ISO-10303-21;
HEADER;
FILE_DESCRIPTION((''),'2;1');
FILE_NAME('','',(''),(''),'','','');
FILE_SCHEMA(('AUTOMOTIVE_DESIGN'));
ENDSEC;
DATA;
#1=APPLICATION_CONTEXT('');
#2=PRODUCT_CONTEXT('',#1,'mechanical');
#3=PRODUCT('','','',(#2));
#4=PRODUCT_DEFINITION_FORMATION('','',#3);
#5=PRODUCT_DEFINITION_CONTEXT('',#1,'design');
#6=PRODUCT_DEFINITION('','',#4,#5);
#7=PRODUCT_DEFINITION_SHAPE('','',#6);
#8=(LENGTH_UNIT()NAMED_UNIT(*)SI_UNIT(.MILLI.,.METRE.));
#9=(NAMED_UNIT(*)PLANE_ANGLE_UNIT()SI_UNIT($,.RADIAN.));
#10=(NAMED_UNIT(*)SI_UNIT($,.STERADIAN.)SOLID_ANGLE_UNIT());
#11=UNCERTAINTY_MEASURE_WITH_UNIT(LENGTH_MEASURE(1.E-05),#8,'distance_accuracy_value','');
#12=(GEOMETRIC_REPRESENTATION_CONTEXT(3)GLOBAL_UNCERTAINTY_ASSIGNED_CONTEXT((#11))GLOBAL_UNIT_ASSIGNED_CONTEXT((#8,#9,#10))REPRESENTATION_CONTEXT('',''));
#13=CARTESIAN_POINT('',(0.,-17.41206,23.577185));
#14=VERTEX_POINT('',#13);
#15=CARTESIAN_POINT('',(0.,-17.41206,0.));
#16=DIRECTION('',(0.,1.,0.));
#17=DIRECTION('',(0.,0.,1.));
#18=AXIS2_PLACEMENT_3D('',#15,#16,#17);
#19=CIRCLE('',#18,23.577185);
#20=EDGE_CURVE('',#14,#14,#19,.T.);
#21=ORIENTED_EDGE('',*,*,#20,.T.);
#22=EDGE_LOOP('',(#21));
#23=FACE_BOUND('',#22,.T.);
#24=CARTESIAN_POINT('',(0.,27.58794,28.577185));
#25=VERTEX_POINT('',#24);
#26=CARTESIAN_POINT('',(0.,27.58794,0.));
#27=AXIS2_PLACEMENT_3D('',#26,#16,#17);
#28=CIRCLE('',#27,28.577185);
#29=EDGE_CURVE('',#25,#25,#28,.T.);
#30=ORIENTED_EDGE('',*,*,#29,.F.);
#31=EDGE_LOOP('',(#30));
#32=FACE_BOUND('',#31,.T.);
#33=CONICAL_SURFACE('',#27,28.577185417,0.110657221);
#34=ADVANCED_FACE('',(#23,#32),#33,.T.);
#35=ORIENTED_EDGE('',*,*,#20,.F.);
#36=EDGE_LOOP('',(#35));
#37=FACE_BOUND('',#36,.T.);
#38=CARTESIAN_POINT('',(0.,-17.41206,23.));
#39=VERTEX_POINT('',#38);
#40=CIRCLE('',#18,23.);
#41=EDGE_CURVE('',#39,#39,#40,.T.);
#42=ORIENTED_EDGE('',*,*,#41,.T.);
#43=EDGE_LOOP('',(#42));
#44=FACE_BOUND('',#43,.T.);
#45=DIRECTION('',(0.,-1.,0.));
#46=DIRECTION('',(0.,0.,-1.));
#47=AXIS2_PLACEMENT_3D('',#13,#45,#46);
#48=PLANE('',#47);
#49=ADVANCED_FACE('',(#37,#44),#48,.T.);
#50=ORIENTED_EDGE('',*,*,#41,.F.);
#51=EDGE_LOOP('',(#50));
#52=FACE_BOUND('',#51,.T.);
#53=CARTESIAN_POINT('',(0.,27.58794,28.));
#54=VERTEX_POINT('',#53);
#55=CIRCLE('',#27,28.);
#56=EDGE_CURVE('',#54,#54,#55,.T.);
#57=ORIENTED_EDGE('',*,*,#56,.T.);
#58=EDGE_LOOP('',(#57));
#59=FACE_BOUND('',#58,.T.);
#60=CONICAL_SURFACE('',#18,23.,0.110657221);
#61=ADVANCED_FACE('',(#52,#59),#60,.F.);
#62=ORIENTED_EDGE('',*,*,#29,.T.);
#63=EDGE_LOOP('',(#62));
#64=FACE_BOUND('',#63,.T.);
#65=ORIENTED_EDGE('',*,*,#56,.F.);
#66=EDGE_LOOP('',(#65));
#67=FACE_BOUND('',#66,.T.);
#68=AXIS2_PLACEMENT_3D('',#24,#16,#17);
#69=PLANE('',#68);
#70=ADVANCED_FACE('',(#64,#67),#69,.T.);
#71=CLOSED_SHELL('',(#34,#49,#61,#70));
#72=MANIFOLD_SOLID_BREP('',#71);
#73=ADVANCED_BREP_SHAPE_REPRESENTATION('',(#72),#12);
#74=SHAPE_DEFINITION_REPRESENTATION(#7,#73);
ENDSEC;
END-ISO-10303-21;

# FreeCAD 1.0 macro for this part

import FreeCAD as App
import Part
import Sketcher

doc = App.newDocument("Part")
body = doc.addObject("PartDesign::Body", "Body")

# Sketch on YZ plane
sketch1 = body.newObject("Sketcher::SketchObject", "Sketch")
sketch1.AttachmentSupport = (doc.getObject("YZ_Plane"), [""])
sketch1.MapMode = "FlatFace"
sketch1.addGeometry(Part.LineSegment(App.Vector(-17.41206, 23.577185, 0), App.Vector(-17.41206, 23, 0)), False)
sketch1.addGeometry(Part.LineSegment(App.Vector(-17.41206, 23, 0), App.Vector(27.58794, 28, 0)), False)
sketch1.addGeometry(Part.LineSegment(App.Vector(27.58794, 28, 0), App.Vector(27.58794, 28.577185, 0)), False)
sketch1.addGeometry(Part.LineSegment(App.Vector(27.58794, 28.577185, 0), App.Vector(-17.41206, 23.577185, 0)), False)
sketch1.addConstraint(Sketcher.Constraint("Coincident", 0, 2, 1, 1))
sketch1.addConstraint(Sketcher.Constraint("Coincident", 1, 2, 2, 1))
sketch1.addConstraint(Sketcher.Constraint("Coincident", 2, 2, 3, 1))
sketch1.addConstraint(Sketcher.Constraint("Coincident", 3, 2, 0, 1))
sketch1.addConstraint(Sketcher.Constraint("Vertical", 0))
sketch1.addConstraint(Sketcher.Constraint("Vertical", 2))
sketch1.addConstraint(Sketcher.Constraint("Parallel", 1, 3))
sketch1.addConstraint(Sketcher.Constraint("DistanceY", -1, 1, 0, 2, 23.0))
sketch1.addConstraint(Sketcher.Constraint("DistanceY", -1, 1, 1, 2, 28.0))
sketch1.addConstraint(Sketcher.Constraint("DistanceX", 0, 2, 1, 2, 45.0))
sketch1.addConstraint(Sketcher.Constraint("DistanceY", 0, 2, 0, 1, 0.577185))
sketch1.addConstraint(Sketcher.Constraint("DistanceX", 0, 2, -1, 1, 17.41206))
revolution = body.newObject("PartDesign::Revolution", "Revolution")
revolution.Profile = sketch1
revolution.ReferenceAxis = (sketch1, ["H_Axis"])
revolution.Angle = 360

doc.recompute()
